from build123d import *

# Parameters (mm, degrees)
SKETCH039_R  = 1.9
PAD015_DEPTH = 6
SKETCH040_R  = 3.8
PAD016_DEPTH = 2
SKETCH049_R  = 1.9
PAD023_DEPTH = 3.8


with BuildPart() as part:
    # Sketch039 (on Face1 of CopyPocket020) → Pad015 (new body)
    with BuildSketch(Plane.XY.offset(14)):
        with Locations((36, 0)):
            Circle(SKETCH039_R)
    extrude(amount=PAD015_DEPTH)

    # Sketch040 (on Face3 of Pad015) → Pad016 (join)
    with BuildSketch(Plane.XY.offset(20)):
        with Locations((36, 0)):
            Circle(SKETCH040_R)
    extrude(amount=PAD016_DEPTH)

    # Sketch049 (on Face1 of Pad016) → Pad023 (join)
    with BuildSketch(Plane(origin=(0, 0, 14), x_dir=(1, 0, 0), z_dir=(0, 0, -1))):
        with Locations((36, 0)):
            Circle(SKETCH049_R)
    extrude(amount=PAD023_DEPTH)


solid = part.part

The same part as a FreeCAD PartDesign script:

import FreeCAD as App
import Part
import Sketcher

V = App.Vector
Q = App.Units.Quantity

doc = App.newDocument("Part")
body = doc.addObject("PartDesign::Body", "Body")

sketch1 = doc.addObject("Sketcher::SketchObject", "Sketch")
body.addObject(sketch1)
sketch1.AttachmentSupport = (doc.XY_Plane, [""])
sketch1.MapMode = "FlatFace"
sketch1.AttachmentOffset = App.Placement(V(0, 0, 14), App.Rotation())
sketch1.addGeometry(Part.Circle(V(36, 0, 0), V(0, 0, 1), 1.9), False)
sketch1.addConstraint([
    Sketcher.Constraint("PointOnObject", 0, 3, -1),
    Sketcher.Constraint("Diameter", 0, Q("3.8 mm")),
    Sketcher.Constraint("DistanceX", -1, 1, 0, 3, Q("36 mm")),
])
pad1 = doc.addObject("PartDesign::Pad", "Pad")
body.addObject(pad1)
pad1.Profile = sketch1
pad1.Length = 6

sketch2 = doc.addObject("Sketcher::SketchObject", "Sketch001")
body.addObject(sketch2)
sketch2.AttachmentSupport = (doc.XY_Plane, [""])
sketch2.MapMode = "FlatFace"
sketch2.AttachmentOffset = App.Placement(V(0, 0, 20), App.Rotation())
sketch2.addGeometry(Part.Circle(V(36, 0, 0), V(0, 0, 1), 3.8), False)
sketch2.addConstraint([
    Sketcher.Constraint("PointOnObject", 0, 3, -1),
    Sketcher.Constraint("Diameter", 0, Q("7.6 mm")),
    Sketcher.Constraint("DistanceX", -1, 1, 0, 3, Q("36 mm")),
])
pad2 = doc.addObject("PartDesign::Pad", "Pad001")
body.addObject(pad2)
pad2.Profile = sketch2
pad2.Length = 2

sketch3 = doc.addObject("Sketcher::SketchObject", "Sketch002")
body.addObject(sketch3)
sketch3.AttachmentSupport = (doc.XY_Plane, [""])
sketch3.MapMode = "FlatFace"
sketch3.AttachmentOffset = App.Placement(V(0, 0, 14), App.Rotation())
sketch3.addGeometry(Part.Circle(V(36, 0, 0), V(0, 0, 1), 1.9), False)
sketch3.addConstraint([
    Sketcher.Constraint("PointOnObject", 0, 3, -1),
    Sketcher.Constraint("Diameter", 0, Q("3.8 mm")),
    Sketcher.Constraint("DistanceX", -1, 1, 0, 3, Q("36 mm")),
])
pad3 = doc.addObject("PartDesign::Pad", "Pad002")
body.addObject(pad3)
pad3.Profile = sketch3
pad3.Length = 3.8
pad3.Reversed = True

doc.recompute()
